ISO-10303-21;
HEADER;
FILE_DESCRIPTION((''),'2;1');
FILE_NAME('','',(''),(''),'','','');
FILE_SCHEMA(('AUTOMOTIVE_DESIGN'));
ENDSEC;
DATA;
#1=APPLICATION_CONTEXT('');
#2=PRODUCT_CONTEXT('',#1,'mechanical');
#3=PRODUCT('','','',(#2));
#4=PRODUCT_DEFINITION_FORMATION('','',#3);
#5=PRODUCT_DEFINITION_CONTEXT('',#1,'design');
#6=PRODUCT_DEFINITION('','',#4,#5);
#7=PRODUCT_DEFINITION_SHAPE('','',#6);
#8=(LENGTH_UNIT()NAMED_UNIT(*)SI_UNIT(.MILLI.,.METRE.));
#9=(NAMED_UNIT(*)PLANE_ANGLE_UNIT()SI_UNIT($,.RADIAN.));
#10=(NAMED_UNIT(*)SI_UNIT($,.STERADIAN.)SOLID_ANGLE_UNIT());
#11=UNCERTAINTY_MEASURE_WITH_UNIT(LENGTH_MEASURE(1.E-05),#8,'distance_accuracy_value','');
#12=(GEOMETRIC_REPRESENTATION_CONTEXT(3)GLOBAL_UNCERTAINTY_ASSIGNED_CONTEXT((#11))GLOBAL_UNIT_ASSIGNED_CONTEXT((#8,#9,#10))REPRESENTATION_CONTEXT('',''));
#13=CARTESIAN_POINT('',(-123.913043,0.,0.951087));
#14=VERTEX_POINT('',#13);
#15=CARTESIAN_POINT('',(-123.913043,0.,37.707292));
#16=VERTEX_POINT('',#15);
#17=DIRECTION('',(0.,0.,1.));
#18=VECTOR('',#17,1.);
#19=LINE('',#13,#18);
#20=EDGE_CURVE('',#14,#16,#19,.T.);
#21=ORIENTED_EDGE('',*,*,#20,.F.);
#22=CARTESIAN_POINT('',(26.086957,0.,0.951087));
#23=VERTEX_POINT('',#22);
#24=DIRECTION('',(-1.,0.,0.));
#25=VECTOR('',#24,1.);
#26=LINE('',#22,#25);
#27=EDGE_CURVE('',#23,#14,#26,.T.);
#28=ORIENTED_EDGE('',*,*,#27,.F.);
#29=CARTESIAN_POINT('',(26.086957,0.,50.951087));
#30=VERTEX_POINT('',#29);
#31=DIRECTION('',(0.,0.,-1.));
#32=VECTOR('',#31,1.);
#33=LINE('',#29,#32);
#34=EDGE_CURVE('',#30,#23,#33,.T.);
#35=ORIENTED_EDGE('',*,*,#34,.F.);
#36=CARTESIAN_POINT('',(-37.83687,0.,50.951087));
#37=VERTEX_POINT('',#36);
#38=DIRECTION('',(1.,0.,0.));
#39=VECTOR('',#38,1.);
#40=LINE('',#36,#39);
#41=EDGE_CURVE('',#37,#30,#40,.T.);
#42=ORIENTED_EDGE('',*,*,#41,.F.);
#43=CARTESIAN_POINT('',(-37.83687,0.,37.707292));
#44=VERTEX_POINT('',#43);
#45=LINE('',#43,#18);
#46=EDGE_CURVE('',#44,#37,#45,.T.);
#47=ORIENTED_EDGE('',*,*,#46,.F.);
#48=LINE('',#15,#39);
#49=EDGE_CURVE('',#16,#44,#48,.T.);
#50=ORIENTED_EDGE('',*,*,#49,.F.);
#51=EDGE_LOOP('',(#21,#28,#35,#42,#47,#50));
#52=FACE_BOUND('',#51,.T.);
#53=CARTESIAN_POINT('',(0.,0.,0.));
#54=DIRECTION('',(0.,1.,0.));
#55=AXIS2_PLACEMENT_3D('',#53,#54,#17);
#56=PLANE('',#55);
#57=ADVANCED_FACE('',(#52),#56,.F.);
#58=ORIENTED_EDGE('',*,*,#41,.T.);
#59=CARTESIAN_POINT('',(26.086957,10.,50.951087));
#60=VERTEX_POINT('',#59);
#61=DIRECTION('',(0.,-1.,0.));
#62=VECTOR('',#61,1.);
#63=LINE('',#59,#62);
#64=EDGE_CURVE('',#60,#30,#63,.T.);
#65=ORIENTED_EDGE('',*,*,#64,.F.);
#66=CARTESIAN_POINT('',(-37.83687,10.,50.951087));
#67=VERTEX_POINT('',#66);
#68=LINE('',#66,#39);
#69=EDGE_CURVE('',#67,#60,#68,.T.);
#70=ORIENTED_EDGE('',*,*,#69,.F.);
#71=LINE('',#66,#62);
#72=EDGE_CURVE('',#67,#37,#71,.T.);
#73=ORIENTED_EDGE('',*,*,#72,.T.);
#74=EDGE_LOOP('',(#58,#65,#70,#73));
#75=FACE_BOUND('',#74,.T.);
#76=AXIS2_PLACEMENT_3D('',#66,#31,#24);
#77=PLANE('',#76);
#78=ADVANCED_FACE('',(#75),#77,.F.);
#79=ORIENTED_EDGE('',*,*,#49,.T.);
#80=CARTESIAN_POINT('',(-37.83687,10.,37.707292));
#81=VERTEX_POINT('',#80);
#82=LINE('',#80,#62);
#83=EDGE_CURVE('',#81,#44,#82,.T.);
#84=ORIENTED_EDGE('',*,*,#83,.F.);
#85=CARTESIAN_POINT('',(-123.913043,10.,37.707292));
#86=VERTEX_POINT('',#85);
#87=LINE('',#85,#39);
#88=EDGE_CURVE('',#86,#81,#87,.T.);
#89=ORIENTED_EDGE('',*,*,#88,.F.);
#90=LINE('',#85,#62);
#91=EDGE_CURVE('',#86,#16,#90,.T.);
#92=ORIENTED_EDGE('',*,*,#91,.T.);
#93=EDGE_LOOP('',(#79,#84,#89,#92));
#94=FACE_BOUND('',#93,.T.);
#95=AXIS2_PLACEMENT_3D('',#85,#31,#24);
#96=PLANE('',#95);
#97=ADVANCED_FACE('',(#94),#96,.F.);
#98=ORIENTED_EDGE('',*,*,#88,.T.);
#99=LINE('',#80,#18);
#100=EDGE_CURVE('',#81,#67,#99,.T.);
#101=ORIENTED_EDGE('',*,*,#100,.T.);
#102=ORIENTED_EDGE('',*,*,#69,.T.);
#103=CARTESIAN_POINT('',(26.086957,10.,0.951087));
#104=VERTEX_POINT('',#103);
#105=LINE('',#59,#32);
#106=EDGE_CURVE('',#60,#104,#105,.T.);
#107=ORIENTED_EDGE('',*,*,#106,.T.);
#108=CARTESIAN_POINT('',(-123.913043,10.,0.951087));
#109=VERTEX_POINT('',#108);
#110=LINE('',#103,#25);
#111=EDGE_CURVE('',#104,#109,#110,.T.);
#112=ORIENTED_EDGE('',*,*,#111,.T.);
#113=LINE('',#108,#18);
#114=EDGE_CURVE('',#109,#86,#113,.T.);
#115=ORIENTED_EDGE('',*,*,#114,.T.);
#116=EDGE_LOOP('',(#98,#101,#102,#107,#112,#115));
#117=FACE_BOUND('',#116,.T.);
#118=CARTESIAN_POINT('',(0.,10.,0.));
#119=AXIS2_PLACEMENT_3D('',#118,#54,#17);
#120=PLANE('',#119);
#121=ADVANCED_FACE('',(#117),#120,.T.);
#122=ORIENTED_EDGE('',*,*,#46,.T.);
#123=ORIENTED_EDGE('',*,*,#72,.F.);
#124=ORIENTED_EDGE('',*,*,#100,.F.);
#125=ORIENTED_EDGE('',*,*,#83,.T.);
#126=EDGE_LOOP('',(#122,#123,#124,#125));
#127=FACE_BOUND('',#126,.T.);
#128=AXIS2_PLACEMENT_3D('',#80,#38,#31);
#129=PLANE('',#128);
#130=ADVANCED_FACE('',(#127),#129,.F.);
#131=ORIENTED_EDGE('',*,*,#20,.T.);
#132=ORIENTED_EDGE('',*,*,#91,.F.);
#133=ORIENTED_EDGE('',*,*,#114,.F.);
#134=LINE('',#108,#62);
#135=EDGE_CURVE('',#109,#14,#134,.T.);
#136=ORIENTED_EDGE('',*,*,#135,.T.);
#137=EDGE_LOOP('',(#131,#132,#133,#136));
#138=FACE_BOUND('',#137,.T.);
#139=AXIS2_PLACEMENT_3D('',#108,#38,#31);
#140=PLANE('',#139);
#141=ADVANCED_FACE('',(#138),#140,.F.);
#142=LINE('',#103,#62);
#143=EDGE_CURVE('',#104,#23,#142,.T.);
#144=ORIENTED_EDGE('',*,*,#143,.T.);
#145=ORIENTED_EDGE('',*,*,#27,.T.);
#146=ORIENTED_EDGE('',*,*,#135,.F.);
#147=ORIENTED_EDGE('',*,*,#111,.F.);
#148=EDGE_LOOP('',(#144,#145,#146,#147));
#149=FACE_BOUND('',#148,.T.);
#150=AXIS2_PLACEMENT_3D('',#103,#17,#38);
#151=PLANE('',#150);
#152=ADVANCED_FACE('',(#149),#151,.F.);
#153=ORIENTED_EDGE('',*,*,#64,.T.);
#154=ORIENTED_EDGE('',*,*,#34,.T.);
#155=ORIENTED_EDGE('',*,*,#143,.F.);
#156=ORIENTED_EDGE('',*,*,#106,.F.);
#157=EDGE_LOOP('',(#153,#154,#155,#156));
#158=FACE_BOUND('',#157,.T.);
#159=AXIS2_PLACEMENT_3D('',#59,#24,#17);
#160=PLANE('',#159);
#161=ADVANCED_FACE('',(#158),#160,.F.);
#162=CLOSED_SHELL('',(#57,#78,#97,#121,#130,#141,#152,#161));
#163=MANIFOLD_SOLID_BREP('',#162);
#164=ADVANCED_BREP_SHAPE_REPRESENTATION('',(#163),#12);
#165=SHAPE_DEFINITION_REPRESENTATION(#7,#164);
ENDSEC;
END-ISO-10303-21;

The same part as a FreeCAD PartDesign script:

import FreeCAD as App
import Part
import Sketcher


def add_polygon(sketch, points):
    """Adds a closed chain of lines whose ends are joined by coincident constraints."""
    first, n = sketch.GeometryCount, len(points)
    for a, b in zip(points, points[1:] + points[:1]):
        sketch.addGeometry(Part.LineSegment(App.Vector(*a, 0), App.Vector(*b, 0)), False)
    for i in range(n):
        sketch.addConstraint(Sketcher.Constraint("Coincident", first + i, 2, first + (i + 1) % n, 1))

doc = App.newDocument("Part")
body = doc.addObject("PartDesign::Body", "Body")

sketch1 = body.newObject("Sketcher::SketchObject", "Sketch")
sketch1.AttachmentSupport = (doc.getObject("XZ_Plane"), [""])
sketch1.MapMode = "FlatFace"
add_polygon(sketch1, [(-123.913043, 0.951087), (-123.913043, 37.707292), (-37.83687, 37.707292), (-37.83687, 50.951087), (26.086957, 50.951087), (26.086957, 0.951087)])
sketch1.addConstraint([
    Sketcher.Constraint("Vertical", 0),
    Sketcher.Constraint("Horizontal", 1),
    Sketcher.Constraint("Vertical", 2),
    Sketcher.Constraint("Horizontal", 3),
    Sketcher.Constraint("Vertical", 4),
    Sketcher.Constraint("Horizontal", 5),
    Sketcher.Constraint("DistanceX", 5, 2, 5, 1, 150.0),
    Sketcher.Constraint("DistanceY", 4, 2, 4, 1, 50.0),
    Sketcher.Constraint("DistanceX", 1, 1, 1, 2, 86.076173),
    Sketcher.Constraint("DistanceY", 0, 1, 0, 2, 36.756205),
    Sketcher.Constraint("DistanceX", 1, 2, -1, 1, 37.83687),
    Sketcher.Constraint("DistanceY", -1, 1, 0, 2, 37.707292),
])
pad1 = body.newObject("PartDesign::Pad", "Pad")
pad1.Profile = sketch1
pad1.Length = 10
pad1.Reversed = True

doc.recompute()
